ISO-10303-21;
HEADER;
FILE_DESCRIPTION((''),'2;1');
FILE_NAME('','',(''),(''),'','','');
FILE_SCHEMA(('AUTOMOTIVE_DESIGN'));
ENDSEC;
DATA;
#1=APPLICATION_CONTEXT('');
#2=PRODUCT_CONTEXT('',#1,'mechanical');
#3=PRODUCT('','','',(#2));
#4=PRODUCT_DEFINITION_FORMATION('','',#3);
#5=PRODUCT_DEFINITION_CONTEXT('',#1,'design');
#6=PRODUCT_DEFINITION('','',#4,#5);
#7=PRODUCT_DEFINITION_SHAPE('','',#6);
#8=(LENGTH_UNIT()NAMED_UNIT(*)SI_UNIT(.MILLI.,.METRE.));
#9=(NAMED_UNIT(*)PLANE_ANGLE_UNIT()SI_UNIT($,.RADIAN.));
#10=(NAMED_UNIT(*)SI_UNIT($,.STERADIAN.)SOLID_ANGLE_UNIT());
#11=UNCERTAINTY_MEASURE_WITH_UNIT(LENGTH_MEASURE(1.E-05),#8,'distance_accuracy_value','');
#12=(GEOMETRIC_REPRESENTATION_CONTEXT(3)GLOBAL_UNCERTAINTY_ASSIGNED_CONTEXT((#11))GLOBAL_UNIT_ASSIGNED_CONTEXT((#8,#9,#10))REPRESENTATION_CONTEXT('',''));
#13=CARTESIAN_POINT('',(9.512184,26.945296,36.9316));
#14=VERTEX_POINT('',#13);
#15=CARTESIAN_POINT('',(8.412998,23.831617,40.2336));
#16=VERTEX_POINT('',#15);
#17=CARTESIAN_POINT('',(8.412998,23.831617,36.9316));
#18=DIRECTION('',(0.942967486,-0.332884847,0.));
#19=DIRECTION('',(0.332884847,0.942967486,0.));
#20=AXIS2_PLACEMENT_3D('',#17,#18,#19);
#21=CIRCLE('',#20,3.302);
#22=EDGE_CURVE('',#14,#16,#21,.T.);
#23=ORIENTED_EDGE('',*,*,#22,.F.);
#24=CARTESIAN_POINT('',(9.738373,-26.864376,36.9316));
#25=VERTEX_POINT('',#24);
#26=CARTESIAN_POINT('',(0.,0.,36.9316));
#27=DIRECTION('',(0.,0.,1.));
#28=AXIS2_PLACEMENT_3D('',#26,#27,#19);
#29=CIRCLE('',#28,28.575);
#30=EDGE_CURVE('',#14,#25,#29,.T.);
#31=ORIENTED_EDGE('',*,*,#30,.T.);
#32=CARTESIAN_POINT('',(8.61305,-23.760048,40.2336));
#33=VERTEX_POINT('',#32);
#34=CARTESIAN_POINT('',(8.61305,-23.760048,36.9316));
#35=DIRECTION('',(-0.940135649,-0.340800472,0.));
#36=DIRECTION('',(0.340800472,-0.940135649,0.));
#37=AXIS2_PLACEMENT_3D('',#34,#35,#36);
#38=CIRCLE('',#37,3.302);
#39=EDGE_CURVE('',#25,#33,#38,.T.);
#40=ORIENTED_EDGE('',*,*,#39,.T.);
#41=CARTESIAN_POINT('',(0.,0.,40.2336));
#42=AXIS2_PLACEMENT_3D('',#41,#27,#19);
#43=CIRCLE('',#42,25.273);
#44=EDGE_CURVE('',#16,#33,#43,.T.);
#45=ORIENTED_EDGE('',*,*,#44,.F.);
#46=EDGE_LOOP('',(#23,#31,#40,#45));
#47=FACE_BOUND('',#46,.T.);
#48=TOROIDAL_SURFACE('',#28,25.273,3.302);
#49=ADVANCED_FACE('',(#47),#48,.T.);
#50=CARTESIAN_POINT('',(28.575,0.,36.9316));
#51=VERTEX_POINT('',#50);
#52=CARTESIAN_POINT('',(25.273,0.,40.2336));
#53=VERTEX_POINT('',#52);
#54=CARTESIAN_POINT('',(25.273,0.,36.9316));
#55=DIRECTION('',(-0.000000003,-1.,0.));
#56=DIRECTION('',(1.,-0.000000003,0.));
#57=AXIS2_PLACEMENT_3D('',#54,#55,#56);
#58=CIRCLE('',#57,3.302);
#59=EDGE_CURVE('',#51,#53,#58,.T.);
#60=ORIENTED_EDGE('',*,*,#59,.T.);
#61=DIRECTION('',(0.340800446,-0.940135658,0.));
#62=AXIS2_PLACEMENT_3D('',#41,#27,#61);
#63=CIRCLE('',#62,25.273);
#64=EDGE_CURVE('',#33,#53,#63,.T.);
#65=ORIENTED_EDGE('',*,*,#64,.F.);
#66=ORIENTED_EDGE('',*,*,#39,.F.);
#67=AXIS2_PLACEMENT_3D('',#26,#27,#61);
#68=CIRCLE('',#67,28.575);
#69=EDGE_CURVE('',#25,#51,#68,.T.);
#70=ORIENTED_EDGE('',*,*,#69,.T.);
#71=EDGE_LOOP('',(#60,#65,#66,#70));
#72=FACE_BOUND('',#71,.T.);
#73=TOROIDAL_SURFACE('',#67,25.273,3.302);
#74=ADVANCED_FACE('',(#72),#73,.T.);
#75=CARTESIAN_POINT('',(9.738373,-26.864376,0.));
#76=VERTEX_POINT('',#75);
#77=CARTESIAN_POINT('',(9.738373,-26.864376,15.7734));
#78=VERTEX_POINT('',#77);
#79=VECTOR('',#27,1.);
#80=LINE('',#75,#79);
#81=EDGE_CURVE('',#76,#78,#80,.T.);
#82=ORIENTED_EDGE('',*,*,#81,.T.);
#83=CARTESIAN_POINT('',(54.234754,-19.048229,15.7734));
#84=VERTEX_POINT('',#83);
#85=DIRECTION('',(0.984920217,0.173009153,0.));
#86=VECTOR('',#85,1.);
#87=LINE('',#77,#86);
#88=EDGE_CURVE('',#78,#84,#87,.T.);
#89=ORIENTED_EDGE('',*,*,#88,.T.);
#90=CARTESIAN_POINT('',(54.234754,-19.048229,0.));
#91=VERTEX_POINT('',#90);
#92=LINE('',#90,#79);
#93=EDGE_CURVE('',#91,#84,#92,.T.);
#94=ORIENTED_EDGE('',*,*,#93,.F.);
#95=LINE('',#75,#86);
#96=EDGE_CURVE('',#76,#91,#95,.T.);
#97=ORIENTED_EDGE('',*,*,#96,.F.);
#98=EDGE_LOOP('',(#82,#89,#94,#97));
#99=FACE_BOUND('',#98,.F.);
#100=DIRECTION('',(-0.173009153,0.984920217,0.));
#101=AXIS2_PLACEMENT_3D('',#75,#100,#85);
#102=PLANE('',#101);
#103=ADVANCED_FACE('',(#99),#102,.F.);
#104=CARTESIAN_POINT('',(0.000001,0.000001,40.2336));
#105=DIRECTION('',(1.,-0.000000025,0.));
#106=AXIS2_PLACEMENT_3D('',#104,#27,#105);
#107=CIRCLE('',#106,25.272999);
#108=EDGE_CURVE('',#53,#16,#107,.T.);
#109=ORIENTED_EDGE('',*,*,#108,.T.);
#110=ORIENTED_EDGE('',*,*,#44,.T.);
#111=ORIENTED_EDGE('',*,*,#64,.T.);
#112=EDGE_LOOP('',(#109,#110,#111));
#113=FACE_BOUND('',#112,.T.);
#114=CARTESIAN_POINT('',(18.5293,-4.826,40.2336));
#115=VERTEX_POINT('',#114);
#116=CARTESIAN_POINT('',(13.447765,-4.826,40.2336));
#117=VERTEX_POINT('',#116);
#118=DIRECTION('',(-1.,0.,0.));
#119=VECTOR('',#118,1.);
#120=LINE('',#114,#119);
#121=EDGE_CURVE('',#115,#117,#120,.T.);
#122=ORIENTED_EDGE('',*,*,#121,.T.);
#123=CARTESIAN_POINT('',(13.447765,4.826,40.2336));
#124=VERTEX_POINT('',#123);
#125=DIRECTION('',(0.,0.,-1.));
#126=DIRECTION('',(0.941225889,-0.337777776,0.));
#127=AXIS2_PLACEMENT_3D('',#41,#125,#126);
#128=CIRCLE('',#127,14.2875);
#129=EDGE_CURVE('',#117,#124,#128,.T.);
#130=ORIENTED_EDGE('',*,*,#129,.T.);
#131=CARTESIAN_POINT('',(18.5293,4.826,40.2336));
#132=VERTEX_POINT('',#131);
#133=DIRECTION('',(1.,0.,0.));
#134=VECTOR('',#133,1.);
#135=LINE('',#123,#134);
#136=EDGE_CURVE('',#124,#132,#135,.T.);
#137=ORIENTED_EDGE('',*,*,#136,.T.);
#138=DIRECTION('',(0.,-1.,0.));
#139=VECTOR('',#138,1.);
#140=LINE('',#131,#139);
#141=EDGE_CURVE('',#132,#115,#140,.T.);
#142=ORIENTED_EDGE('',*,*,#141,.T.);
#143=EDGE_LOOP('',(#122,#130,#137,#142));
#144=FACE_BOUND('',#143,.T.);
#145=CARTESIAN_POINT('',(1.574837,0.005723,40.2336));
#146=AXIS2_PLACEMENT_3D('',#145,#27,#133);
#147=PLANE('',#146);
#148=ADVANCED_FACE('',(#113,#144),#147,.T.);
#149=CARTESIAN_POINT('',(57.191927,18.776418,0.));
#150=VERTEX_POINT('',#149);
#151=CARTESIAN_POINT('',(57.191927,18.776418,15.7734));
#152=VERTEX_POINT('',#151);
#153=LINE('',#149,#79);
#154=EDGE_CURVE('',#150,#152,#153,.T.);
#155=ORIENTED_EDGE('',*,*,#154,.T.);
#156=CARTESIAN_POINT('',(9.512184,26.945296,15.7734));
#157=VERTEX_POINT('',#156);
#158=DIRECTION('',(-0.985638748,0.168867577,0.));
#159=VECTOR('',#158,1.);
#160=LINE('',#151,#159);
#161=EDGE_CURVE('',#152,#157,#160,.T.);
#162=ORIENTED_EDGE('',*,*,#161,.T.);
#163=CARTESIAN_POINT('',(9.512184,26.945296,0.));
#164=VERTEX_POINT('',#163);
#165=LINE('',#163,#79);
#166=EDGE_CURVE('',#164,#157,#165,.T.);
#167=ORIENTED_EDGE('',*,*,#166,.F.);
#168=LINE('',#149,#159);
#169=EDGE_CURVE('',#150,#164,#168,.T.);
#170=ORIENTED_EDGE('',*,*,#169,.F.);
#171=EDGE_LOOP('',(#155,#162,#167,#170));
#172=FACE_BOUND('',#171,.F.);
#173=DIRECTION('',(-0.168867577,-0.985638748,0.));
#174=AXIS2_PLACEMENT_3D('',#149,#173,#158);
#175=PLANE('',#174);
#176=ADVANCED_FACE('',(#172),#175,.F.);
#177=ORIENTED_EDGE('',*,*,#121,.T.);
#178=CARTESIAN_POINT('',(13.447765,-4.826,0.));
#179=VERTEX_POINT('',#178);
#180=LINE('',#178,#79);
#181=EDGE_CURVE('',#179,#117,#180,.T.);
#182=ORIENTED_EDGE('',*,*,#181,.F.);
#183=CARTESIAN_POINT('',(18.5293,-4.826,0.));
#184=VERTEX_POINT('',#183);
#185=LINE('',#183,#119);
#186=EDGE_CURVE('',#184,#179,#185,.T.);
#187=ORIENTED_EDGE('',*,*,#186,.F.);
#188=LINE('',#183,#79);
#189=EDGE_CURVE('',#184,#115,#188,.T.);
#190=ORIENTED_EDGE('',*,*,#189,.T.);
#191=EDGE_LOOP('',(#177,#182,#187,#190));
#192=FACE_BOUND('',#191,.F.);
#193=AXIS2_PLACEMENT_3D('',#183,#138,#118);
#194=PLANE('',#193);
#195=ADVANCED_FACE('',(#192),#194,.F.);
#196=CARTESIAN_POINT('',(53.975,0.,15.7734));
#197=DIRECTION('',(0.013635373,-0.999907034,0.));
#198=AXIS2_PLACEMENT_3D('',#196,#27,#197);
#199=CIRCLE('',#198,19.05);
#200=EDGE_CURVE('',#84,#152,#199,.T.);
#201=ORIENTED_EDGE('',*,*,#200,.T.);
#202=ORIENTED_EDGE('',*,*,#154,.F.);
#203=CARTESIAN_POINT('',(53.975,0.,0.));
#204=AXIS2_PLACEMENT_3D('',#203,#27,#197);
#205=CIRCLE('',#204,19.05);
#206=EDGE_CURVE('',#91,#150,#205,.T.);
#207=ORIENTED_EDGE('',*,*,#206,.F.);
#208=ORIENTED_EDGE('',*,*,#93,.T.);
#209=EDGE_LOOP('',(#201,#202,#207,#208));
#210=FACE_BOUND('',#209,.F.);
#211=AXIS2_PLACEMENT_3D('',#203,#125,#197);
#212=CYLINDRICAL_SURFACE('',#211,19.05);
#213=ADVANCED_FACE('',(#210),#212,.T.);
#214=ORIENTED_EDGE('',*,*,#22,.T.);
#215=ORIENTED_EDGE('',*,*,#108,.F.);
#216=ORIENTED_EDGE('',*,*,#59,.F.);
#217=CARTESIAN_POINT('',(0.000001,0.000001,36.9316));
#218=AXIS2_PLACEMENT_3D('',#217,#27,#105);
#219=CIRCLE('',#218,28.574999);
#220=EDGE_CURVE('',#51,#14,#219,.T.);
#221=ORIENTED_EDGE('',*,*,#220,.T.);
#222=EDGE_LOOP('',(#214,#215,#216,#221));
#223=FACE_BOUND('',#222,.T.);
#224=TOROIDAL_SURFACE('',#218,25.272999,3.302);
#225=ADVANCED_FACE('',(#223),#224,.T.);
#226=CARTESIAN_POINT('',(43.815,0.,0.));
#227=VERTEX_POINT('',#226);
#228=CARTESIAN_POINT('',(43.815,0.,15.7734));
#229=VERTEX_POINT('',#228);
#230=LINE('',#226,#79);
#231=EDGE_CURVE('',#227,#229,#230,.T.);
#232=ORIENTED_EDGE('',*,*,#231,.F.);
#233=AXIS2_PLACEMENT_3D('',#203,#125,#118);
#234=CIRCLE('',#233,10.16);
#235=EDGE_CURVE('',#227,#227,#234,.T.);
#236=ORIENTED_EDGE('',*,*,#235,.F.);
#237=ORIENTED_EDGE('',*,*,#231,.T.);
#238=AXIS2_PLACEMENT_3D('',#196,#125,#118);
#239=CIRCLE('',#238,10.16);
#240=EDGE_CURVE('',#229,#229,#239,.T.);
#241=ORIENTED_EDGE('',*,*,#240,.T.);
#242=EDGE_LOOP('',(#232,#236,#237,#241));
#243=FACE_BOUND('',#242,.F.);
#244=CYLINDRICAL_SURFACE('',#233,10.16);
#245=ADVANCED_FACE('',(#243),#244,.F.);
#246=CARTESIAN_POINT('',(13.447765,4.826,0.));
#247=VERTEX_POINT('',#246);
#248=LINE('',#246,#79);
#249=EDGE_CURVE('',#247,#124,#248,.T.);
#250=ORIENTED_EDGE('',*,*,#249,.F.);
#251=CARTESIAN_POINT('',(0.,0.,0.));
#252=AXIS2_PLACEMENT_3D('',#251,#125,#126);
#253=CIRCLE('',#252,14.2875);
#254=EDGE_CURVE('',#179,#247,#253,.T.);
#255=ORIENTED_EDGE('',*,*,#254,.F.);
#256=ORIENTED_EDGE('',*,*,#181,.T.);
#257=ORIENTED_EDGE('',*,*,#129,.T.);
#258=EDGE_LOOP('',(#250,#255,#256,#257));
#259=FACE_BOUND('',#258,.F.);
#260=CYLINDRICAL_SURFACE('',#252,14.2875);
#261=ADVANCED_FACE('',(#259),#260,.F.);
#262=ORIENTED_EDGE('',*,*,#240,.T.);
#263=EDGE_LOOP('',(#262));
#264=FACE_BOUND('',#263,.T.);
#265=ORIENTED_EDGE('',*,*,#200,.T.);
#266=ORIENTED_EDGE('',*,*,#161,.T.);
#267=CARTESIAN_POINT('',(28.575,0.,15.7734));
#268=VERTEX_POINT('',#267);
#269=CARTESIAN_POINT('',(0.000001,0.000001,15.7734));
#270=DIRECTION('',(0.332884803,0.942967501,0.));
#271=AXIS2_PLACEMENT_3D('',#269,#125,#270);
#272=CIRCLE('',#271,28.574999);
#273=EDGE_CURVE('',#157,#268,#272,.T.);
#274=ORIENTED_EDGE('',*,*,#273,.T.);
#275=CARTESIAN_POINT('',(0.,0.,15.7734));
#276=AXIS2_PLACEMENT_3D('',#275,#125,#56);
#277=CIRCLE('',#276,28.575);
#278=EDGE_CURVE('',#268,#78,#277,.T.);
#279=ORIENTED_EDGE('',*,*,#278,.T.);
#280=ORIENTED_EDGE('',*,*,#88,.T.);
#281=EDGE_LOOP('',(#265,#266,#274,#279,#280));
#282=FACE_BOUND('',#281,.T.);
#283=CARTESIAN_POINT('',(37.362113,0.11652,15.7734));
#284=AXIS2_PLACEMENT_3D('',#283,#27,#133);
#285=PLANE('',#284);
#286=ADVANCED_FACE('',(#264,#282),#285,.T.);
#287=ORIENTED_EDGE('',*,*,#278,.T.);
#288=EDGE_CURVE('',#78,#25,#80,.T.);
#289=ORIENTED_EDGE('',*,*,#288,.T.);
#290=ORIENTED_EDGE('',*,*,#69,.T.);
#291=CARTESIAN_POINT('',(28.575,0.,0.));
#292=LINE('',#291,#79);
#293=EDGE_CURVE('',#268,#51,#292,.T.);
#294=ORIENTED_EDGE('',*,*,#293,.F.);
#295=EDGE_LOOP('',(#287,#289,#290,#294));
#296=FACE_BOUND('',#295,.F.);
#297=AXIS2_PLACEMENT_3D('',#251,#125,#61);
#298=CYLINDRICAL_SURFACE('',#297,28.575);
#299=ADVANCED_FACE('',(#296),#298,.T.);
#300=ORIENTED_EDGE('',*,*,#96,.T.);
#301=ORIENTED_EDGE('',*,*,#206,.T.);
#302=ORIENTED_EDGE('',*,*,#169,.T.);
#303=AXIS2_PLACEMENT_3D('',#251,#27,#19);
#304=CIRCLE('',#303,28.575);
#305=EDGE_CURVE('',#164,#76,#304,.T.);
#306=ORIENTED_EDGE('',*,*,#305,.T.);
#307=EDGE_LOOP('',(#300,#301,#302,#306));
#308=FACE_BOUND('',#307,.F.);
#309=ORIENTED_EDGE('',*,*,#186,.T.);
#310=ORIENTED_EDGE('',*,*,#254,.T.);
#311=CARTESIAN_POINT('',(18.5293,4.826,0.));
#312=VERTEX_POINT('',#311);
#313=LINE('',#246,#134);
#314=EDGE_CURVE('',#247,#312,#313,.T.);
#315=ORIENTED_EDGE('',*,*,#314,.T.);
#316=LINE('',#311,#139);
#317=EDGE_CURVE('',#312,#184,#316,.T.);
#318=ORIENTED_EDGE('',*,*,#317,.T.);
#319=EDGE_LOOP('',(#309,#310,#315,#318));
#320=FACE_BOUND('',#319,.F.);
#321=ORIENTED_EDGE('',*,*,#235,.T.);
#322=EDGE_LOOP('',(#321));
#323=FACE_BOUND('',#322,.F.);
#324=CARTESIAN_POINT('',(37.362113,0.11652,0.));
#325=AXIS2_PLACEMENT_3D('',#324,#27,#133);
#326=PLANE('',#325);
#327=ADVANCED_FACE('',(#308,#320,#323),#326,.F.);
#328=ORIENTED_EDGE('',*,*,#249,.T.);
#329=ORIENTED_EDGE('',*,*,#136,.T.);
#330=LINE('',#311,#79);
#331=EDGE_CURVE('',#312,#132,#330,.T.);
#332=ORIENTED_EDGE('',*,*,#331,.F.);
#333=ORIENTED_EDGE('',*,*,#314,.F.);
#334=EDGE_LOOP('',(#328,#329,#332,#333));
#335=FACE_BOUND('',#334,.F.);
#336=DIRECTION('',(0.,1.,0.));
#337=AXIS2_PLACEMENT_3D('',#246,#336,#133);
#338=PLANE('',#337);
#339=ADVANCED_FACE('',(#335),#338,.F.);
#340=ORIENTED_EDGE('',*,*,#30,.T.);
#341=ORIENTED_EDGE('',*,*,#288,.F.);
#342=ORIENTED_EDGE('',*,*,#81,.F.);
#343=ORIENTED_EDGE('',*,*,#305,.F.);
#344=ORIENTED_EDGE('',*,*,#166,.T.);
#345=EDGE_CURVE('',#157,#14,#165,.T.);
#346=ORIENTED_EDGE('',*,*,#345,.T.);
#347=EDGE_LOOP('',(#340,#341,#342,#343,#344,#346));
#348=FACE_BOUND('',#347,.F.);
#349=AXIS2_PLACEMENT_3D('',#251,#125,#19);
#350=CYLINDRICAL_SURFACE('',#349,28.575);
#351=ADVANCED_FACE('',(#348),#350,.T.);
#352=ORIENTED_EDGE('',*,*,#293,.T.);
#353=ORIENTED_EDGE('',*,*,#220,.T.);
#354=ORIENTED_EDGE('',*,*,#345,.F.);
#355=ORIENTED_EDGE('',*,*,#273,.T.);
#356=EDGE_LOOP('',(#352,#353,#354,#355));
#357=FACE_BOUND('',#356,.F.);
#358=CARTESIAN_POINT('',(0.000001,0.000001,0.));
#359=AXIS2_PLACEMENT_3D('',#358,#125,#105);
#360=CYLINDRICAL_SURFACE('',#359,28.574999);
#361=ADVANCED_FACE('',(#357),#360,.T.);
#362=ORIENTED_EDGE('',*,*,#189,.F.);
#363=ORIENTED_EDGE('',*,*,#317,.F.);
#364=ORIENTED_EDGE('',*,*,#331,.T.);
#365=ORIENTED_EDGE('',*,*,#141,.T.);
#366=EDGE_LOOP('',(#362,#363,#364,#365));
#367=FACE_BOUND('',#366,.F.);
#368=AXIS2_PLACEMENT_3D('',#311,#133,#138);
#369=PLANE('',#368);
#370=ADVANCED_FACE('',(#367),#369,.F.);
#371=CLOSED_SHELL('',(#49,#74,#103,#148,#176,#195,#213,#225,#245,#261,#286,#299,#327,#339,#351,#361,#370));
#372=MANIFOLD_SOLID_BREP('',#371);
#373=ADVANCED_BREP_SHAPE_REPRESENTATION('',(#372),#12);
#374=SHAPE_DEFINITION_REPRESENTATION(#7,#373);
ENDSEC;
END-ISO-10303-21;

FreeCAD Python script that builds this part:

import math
import FreeCAD as App
import Part
import Sketcher
from FreeCAD import Vector
Q = App.Units.Quantity


def edges_at(feature, points):
    """Names of the edges that pass closest to the given points."""
    edges = feature.Shape.Edges
    near = lambda p: min(range(len(edges)), key=lambda i: edges[i].distToShape(Part.Vertex(*p))[0])
    return sorted({f"Edge{near(p) + 1}" for p in points})

doc = App.newDocument("Part")
params = doc.addObject("Spreadsheet::Sheet", "Params")
for row, (alias, value) in enumerate([
    ("sketch1_radius", "1.125 in"),
    ("sketch1_radius2", "0.5625 in"),
    ("sketch1_height", "0.38 in"),
    ("pad1_length", "1.584 in"),
    ("sketch2_diameter", "0.8 in"),
    ("sketch2_radius", "0.75 in"),
    ("sketch2_radius2", "1.125 in"),
    ("pad2_length", "0.621 in"),
    ("fillet_radius", "0.13 in"),
], start=1):
    params.set(f"A{row}", alias)
    params.set(f"B{row}", "=" + value)
    params.setAlias(f"B{row}", alias)

body = doc.addObject("PartDesign::Body", "Body")

# Sketch on XY plane
sketch1 = body.newObject("Sketcher::SketchObject", "Sketch")
sketch1.AttachmentSupport = (doc.getObject("XY_Plane"), [""])
sketch1.MapMode = "FlatFace"
sketch1.addGeometry([
    Part.ArcOfCircle(Part.Circle(Vector(0, 0, 0), Vector(0, 0, 1), 29), math.radians(-70), math.radians(0)),  # 0
    Part.ArcOfCircle(Part.Circle(Vector(0, 0, 0), Vector(0, 0, 1), 29), math.radians(0), math.radians(71)),  # 1
    Part.ArcOfCircle(Part.Circle(Vector(0, 0, 0), Vector(0, 0, 1), 29), math.radians(71), math.radians(290)),  # 2
    Part.LineSegment(Vector(13, 5, 0), Vector(19, 5, 0)),  # 3
    Part.LineSegment(Vector(19, 5, 0), Vector(19, -5, 0)),  # 4
    Part.LineSegment(Vector(19, -5, 0), Vector(13, -5, 0)),  # 5
    Part.ArcOfCircle(Part.Circle(Vector(0, 0, 0), Vector(0, 0, 1), 14), math.radians(20), math.radians(340)),  # 6
], False)
sketch1.addConstraint([
    Sketcher.Constraint("Tangent", 0, 2, 1, 1),
    Sketcher.Constraint("Tangent", 1, 2, 2, 1),
    Sketcher.Constraint("Tangent", 2, 2, 0, 1),
    Sketcher.Constraint("Coincident", 3, 2, 4, 1),
    Sketcher.Constraint("Coincident", 4, 2, 5, 1),
    Sketcher.Constraint("Coincident", 5, 2, 6, 2),
    Sketcher.Constraint("Coincident", 6, 1, 3, 1),
    Sketcher.Constraint("Horizontal", 3),
    Sketcher.Constraint("Vertical", 4),
    Sketcher.Constraint("Horizontal", 5),
    Sketcher.Constraint("Coincident", 0, 3, -1, 1),
    Sketcher.Constraint("Coincident", 6, 3, -1, 1),
    Sketcher.Constraint("PointOnObject", 0, 2, -1),
    Sketcher.Constraint("Vertical", 5, 2, 6, 1),
    Sketcher.Constraint("Radius", 0, Q("1.125 in")),
    Sketcher.Constraint("Radius", 6, Q("0.5625 in")),
    Sketcher.Constraint("DistanceY", 4, 2, 4, 1, Q("0.38 in")),
    Sketcher.Constraint("DistanceX", -1, 1, 3, 2, Q("0.7295 in")),
    Sketcher.Constraint("DistanceX", 1, 3, 2, 2, Q("9.738372 mm")),
    Sketcher.Constraint("DistanceX", -1, 1, 1, 2, Q("9.512184 mm")),
])
sketch1.setExpression("Constraints[14]", "Params.sketch1_radius")
sketch1.setExpression("Constraints[15]", "Params.sketch1_radius2")
sketch1.setExpression("Constraints[16]", "Params.sketch1_height")
pad1 = body.newObject("PartDesign::Pad", "Pad")
pad1.Profile = sketch1
pad1.setExpression("Length", "Params.pad1_length")

# Sketch on XY plane
sketch2 = body.newObject("Sketcher::SketchObject", "Sketch001")
sketch2.AttachmentSupport = (doc.getObject("XY_Plane"), [""])
sketch2.MapMode = "FlatFace"
sketch2.addGeometry([
    Part.ArcOfCircle(Part.Circle(Vector(0, 0, 0), Vector(0, 0, 1), 29), math.radians(0), math.radians(71)),  # 0
    Part.ArcOfCircle(Part.Circle(Vector(0, 0, 0), Vector(0, 0, 1), 29), math.radians(-70), math.radians(0)),  # 1
    Part.LineSegment(Vector(10, -27, 0), Vector(54, -19, 0)),  # 2
    Part.ArcOfCircle(Part.Circle(Vector(54, 0, 0), Vector(0, 0, 1), 19), math.radians(-89), math.radians(80)),  # 3
    Part.LineSegment(Vector(57, 19, 0), Vector(10, 27, 0)),  # 4
    Part.Circle(Vector(54, 0, 0), Vector(0, 0, 1), 10),  # 5
], False)
sketch2.addConstraint([
    Sketcher.Constraint("Tangent", 0, 1, 1, 2),
    Sketcher.Constraint("Coincident", 1, 1, 2, 1),
    Sketcher.Constraint("Coincident", 2, 2, 3, 1),
    Sketcher.Constraint("Tangent", 3, 2, 4, 1),
    Sketcher.Constraint("Coincident", 4, 2, 0, 2),
    Sketcher.Constraint("Coincident", 0, 3, -1, 1),
    Sketcher.Constraint("Coincident", 5, 3, 3, 3),
    Sketcher.Constraint("Equal", 0, 1),
    Sketcher.Constraint("PointOnObject", 3, 3, -1),
    Sketcher.Constraint("PointOnObject", 0, 1, -1),
    Sketcher.Constraint("Diameter", 5, Q("0.8 in")),
    Sketcher.Constraint("Radius", 3, Q("0.75 in")),
    Sketcher.Constraint("Radius", 0, Q("1.125 in")),
    Sketcher.Constraint("DistanceX", 0, 1, 5, 3, Q("1 in")),
    Sketcher.Constraint("Distance", 2, Q("45.17765 mm")),
    Sketcher.Constraint("Distance", 4, Q("48.374461 mm")),
    Sketcher.Constraint("DistanceY", 2, 2, -1, 1, Q("19.048229 mm")),
])
sketch2.setExpression("Constraints[10]", "Params.sketch2_diameter")
sketch2.setExpression("Constraints[11]", "Params.sketch2_radius")
sketch2.setExpression("Constraints[12]", "Params.sketch2_radius2")
pad2 = body.newObject("PartDesign::Pad", "Pad001")
pad2.Profile = sketch2
pad2.setExpression("Length", "Params.pad2_length")
doc.recompute()

fillet = body.newObject("PartDesign::Fillet", "Fillet")
fillet.Base = (pad2, edges_at(pad2, [(-28.575, -0.12, 40.234)]))
fillet.setExpression("Radius", "Params.fillet_radius")

doc.recompute()
